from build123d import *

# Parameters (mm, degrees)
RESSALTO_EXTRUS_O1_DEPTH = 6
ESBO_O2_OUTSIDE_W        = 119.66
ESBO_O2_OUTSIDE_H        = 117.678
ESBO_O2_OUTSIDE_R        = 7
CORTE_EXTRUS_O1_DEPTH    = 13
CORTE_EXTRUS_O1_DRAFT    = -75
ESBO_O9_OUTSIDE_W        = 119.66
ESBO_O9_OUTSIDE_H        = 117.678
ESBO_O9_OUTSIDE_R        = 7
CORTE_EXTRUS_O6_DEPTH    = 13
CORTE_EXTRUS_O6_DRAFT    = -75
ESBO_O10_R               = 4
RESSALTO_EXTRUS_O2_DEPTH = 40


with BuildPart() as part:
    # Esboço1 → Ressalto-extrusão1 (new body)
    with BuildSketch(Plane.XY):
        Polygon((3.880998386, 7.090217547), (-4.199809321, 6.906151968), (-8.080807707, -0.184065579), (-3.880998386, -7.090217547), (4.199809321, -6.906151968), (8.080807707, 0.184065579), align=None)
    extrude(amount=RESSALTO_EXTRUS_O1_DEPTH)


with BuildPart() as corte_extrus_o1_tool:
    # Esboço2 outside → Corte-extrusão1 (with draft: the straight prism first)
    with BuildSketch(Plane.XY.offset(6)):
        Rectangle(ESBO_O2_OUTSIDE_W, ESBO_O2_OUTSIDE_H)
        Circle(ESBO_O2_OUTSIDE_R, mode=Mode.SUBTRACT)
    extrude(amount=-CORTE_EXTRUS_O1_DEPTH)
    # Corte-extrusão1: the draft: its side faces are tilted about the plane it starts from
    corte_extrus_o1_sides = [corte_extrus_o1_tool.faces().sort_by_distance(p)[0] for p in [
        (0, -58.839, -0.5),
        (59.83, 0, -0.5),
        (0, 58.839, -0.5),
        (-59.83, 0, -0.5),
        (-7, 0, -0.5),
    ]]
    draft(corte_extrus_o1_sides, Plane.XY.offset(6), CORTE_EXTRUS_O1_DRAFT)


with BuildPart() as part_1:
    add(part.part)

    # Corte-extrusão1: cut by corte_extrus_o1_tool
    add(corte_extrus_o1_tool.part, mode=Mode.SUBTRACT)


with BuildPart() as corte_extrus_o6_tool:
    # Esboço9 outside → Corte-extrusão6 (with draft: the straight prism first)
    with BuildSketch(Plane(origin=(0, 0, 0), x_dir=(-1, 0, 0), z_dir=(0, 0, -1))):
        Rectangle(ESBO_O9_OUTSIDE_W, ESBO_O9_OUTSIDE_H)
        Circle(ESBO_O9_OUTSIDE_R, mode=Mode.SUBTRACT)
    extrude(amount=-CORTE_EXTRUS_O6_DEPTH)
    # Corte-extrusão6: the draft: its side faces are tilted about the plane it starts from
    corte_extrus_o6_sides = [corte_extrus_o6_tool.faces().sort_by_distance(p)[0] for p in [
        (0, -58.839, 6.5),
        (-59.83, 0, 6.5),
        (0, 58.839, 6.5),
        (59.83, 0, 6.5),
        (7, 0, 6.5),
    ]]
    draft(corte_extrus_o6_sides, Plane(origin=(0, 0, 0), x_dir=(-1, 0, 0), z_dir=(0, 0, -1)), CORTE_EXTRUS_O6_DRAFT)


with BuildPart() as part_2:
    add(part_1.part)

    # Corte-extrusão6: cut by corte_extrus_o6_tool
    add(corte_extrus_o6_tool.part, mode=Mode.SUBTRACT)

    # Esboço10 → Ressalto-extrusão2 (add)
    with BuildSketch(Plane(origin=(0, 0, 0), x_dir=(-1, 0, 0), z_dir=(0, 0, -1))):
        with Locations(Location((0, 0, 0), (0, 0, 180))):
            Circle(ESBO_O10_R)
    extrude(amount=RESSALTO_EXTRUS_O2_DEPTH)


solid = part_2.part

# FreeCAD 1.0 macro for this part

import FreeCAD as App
import Part
import Sketcher

V = App.Vector
Q = App.Units.Quantity


def faces_at(feature, points):
    """Names of the faces that lie closest to the given points."""
    faces = feature.Shape.Faces
    near = lambda p: min(range(len(faces)), key=lambda i: faces[i].distToShape(Part.Vertex(*p))[0])
    return sorted({f"Face{near(p) + 1}" for p in points})

doc = App.newDocument("Part")
body = doc.addObject("PartDesign::Body", "Body")

# Sketch on XY plane
sketch1 = body.newObject("Sketcher::SketchObject", "Sketch")
sketch1.AttachmentSupport = (doc.getObject("XY_Plane"), [""])
sketch1.MapMode = "FlatFace"
sketch1.addGeometry([
    Part.LineSegment(V(4, 7, 0), V(-4, 7, 0)),  # 0
    Part.LineSegment(V(-4, 7, 0), V(-8, 0, 0)),  # 1
    Part.LineSegment(V(-8, 0, 0), V(-4, -7, 0)),  # 2
    Part.LineSegment(V(-4, -7, 0), V(4, -7, 0)),  # 3
    Part.LineSegment(V(4, -7, 0), V(8, 0, 0)),  # 4
    Part.LineSegment(V(8, 0, 0), V(4, 7, 0)),  # 5
], False)
sketch1.addConstraint([
    Sketcher.Constraint("Coincident", 0, 2, 1, 1),
    Sketcher.Constraint("Coincident", 1, 2, 2, 1),
    Sketcher.Constraint("Coincident", 2, 2, 3, 1),
    Sketcher.Constraint("Coincident", 3, 2, 4, 1),
    Sketcher.Constraint("Coincident", 4, 2, 5, 1),
    Sketcher.Constraint("Coincident", 5, 2, 0, 1),
    Sketcher.Constraint("Symmetric", 0, 2, 3, 2, -1, 1),
    Sketcher.Constraint("Symmetric", 1, 2, 4, 2, -1, 1),
    Sketcher.Constraint("Symmetric", 2, 2, 5, 2, -1, 1),
    Sketcher.Constraint("Equal", 0, 1),
    Sketcher.Constraint("Equal", 1, 2),
    Sketcher.Constraint("DistanceX", 2, 2, -1, 1, Q("3.880998 mm")),
    Sketcher.Constraint("DistanceX", 1, 2, 0, 2, Q("3.880998 mm")),
    Sketcher.Constraint("DistanceX", 0, 2, -1, 1, Q("4.199809 mm")),
    Sketcher.Constraint("DistanceY", -1, 1, 0, 2, Q("6.906152 mm")),
])
pad1 = body.newObject("PartDesign::Pad", "Pad")
pad1.Profile = sketch1
pad1.Length = 6
body2 = doc.addObject("PartDesign::Body", "Body001")

# Sketch on XY plane
sketch2 = body2.newObject("Sketcher::SketchObject", "Sketch001")
sketch2.AttachmentSupport = (doc.getObject("XY_Plane001"), [""])
sketch2.MapMode = "FlatFace"
sketch2.AttachmentOffset = App.Placement(V(0, 0, 6), App.Rotation())
sketch2.addGeometry([
    Part.LineSegment(V(-60, 59, 0), V(-60, -59, 0)),  # 0
    Part.LineSegment(V(-60, -59, 0), V(60, -59, 0)),  # 1
    Part.LineSegment(V(60, -59, 0), V(60, 59, 0)),  # 2
    Part.LineSegment(V(60, 59, 0), V(-60, 59, 0)),  # 3
    Part.Circle(V(0, 0, 0), V(0, 0, 1), 7),  # 4
], False)
sketch2.addConstraint([
    Sketcher.Constraint("Coincident", 0, 2, 1, 1),
    Sketcher.Constraint("Coincident", 1, 2, 2, 1),
    Sketcher.Constraint("Coincident", 2, 2, 3, 1),
    Sketcher.Constraint("Coincident", 3, 2, 0, 1),
    Sketcher.Constraint("Vertical", 0),
    Sketcher.Constraint("Horizontal", 1),
    Sketcher.Constraint("Vertical", 2),
    Sketcher.Constraint("Horizontal", 3),
    Sketcher.Constraint("Coincident", 4, 3, -1, 1),
    Sketcher.Constraint("Symmetric", 0, 2, 2, 2, -1, 1),
    Sketcher.Constraint("Diameter", 4, Q("14 mm")),
    Sketcher.Constraint("DistanceX", 1, 1, 1, 2, Q("119.66 mm")),
    Sketcher.Constraint("DistanceY", 0, 2, 0, 1, Q("117.678 mm")),
])
pad2 = body2.newObject("PartDesign::Pad", "Pad001")
pad2.Profile = sketch2
pad2.Length = 13
pad2.Reversed = True
doc.recompute()

datumplane = body2.newObject("PartDesign::Plane", "DatumPlane")
datumplane.AttachmentSupport = (doc.getObject("XY_Plane001"), [""])
datumplane.MapMode = "FlatFace"
datumplane.AttachmentOffset = App.Placement(V(0, 0, 6), App.Rotation())
draft = body2.newObject("PartDesign::Draft", "Draft")
draft.Base = (pad2, faces_at(pad2, [
    (0, -58.839, -0.5),
    (59.83, 0, -0.5),
    (0, 58.839, -0.5),
    (-59.83, 0, -0.5),
    (-7, 0, -0.5),
]))
draft.NeutralPlane = (datumplane, [""])
draft.Angle = 75
draft.Reversed = True
doc.recompute()

boolean = body.newObject("PartDesign::Boolean", "Boolean")
boolean.Type = "Cut"
boolean.addObjects([body2])
body3 = doc.addObject("PartDesign::Body", "Body002")

# Sketch on XY plane
sketch3 = body3.newObject("Sketcher::SketchObject", "Sketch002")
sketch3.AttachmentSupport = (doc.getObject("XY_Plane002"), [""])
sketch3.MapMode = "FlatFace"
sketch3.addGeometry([
    Part.LineSegment(V(60, 59, 0), V(60, -59, 0)),  # 0
    Part.LineSegment(V(60, -59, 0), V(-60, -59, 0)),  # 1
    Part.LineSegment(V(-60, -59, 0), V(-60, 59, 0)),  # 2
    Part.LineSegment(V(-60, 59, 0), V(60, 59, 0)),  # 3
    Part.Circle(V(0, 0, 0), V(0, 0, 1), 7),  # 4
], False)
sketch3.addConstraint([
    Sketcher.Constraint("Coincident", 0, 2, 1, 1),
    Sketcher.Constraint("Coincident", 1, 2, 2, 1),
    Sketcher.Constraint("Coincident", 2, 2, 3, 1),
    Sketcher.Constraint("Coincident", 3, 2, 0, 1),
    Sketcher.Constraint("Vertical", 0),
    Sketcher.Constraint("Horizontal", 1),
    Sketcher.Constraint("Vertical", 2),
    Sketcher.Constraint("Horizontal", 3),
    Sketcher.Constraint("Coincident", 4, 3, -1, 1),
    Sketcher.Constraint("Symmetric", 0, 2, 2, 2, -1, 1),
    Sketcher.Constraint("Diameter", 4, Q("14 mm")),
    Sketcher.Constraint("DistanceX", 1, 2, 1, 1, Q("119.66 mm")),
    Sketcher.Constraint("DistanceY", 0, 2, 0, 1, Q("117.678 mm")),
])
pad3 = body3.newObject("PartDesign::Pad", "Pad002")
pad3.Profile = sketch3
pad3.Length = 13
doc.recompute()

draft2 = body3.newObject("PartDesign::Draft", "Draft001")
draft2.Base = (pad3, faces_at(pad3, [
    (0, -58.839, 6.5),
    (-59.83, 0, 6.5),
    (0, 58.839, 6.5),
    (59.83, 0, 6.5),
    (7, 0, 6.5),
]))
draft2.NeutralPlane = (doc.getObject("XY_Plane002"), [""])
draft2.Angle = 75
draft2.Reversed = False
doc.recompute()

boolean2 = body.newObject("PartDesign::Boolean", "Boolean001")
boolean2.Type = "Cut"
boolean2.addObjects([body3])

# Sketch on XY plane
sketch4 = body.newObject("Sketcher::SketchObject", "Sketch003")
sketch4.AttachmentSupport = (doc.getObject("XY_Plane"), [""])
sketch4.MapMode = "FlatFace"
sketch4.addGeometry(Part.Circle(V(0, 0, 0), V(0, 0, 1), 4), False)
sketch4.addConstraint([
    Sketcher.Constraint("Coincident", 0, 3, -1, 1),
    Sketcher.Constraint("Diameter", 0, Q("8 mm")),
])
pad4 = body.newObject("PartDesign::Pad", "Pad003")
pad4.Profile = sketch4
pad4.Length = 40
pad4.Reversed = True

doc.recompute()
